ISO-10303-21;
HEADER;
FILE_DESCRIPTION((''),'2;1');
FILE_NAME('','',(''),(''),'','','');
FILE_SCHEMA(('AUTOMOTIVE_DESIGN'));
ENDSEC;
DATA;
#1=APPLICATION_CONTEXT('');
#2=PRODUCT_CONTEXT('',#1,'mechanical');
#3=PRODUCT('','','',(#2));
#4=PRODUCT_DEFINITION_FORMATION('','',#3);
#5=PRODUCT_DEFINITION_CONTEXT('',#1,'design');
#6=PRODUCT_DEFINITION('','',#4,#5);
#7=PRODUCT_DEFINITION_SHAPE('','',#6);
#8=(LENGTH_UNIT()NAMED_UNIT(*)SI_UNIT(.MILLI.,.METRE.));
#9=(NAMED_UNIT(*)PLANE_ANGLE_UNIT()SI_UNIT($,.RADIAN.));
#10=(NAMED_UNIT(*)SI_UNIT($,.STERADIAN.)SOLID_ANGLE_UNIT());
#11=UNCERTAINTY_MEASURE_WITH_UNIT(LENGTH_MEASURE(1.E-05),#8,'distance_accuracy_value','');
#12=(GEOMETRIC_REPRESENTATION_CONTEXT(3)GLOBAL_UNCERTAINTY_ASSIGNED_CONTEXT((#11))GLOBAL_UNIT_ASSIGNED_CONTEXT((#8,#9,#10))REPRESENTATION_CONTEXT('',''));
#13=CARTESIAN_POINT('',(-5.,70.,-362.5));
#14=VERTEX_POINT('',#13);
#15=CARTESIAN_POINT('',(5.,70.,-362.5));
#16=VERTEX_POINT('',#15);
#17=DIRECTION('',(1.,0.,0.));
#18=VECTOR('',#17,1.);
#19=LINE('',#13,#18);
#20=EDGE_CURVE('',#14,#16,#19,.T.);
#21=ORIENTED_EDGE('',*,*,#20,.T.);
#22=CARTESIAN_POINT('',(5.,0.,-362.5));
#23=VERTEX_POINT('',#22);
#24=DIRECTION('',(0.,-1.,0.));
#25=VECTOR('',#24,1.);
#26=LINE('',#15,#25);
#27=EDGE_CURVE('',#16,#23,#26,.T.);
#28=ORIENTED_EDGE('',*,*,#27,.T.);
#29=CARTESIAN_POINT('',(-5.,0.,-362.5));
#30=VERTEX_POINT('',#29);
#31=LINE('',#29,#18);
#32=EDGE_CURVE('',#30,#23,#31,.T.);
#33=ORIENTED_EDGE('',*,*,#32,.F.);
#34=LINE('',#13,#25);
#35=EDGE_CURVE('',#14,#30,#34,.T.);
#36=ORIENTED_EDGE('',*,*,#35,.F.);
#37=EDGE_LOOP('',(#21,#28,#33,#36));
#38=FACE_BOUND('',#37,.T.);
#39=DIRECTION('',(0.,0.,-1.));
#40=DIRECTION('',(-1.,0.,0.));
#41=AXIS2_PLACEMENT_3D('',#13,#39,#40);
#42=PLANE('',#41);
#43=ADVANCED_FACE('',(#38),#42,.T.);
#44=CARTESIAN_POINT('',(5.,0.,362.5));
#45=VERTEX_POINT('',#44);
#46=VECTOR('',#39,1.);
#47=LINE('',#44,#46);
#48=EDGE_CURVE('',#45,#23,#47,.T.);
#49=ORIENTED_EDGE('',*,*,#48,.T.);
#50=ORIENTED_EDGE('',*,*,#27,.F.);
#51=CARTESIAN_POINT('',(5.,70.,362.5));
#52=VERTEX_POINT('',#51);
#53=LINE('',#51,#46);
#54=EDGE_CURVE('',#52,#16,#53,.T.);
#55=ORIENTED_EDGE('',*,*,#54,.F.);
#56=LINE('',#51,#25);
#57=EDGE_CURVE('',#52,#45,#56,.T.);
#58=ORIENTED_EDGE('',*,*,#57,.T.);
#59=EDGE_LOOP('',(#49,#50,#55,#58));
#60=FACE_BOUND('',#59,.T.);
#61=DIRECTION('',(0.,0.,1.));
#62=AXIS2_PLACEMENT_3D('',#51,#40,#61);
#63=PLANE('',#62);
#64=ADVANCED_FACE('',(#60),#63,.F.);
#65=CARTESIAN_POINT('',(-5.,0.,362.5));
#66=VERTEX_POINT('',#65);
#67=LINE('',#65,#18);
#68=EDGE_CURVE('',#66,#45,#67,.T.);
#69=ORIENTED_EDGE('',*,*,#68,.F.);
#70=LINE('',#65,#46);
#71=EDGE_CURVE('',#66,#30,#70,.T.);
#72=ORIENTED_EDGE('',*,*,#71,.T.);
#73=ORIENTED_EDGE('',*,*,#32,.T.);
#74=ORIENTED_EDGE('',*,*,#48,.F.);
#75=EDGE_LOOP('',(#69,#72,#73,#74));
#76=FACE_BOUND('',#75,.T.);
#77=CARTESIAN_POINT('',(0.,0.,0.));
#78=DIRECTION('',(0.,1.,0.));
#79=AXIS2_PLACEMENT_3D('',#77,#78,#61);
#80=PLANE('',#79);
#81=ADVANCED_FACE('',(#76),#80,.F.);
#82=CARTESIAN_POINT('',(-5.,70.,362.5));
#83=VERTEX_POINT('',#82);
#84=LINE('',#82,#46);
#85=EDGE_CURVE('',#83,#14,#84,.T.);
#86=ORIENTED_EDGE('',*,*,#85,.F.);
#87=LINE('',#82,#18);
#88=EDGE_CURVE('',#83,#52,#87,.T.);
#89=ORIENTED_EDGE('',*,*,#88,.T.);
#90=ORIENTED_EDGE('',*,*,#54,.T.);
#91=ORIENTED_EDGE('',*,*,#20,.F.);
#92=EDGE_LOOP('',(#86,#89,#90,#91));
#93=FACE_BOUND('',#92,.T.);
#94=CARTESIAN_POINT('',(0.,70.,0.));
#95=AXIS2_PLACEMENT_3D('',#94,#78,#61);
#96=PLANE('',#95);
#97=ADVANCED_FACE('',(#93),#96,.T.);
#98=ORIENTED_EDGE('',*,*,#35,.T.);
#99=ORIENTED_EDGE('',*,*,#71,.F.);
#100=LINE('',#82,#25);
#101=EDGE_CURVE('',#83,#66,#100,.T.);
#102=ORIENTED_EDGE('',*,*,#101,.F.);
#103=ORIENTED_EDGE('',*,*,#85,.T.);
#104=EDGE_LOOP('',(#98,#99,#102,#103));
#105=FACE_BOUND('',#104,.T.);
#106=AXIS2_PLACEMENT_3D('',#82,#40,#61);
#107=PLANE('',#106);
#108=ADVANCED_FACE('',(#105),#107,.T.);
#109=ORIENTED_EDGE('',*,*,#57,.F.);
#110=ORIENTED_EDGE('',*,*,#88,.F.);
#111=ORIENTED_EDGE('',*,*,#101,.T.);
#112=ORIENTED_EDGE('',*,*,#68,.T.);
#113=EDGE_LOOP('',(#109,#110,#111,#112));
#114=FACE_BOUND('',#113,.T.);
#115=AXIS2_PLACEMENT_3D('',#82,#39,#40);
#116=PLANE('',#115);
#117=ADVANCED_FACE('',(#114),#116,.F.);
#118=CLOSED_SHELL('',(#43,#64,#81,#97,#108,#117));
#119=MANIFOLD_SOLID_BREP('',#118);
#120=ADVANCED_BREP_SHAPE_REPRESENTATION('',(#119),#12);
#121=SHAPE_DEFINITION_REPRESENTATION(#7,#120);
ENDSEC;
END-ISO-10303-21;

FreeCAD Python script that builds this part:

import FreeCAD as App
import Part
import Sketcher
from FreeCAD import Vector
Q = App.Units.Quantity

doc = App.newDocument("Part")
body = doc.addObject("PartDesign::Body", "Body")

sketch1 = body.newObject("Sketcher::SketchObject", "Sketch")
sketch1.AttachmentSupport = (doc.getObject("XZ_Plane"), [""])
sketch1.MapMode = "FlatFace"
sketch1.addGeometry([
    Part.LineSegment(Vector(-5, -362.5, 0), Vector(-5, 362.5, 0)),
    Part.LineSegment(Vector(-5, 362.5, 0), Vector(5, 362.5, 0)),
    Part.LineSegment(Vector(5, 362.5, 0), Vector(5, -362.5, 0)),
    Part.LineSegment(Vector(5, -362.5, 0), Vector(-5, -362.5, 0)),
], False)
sketch1.addConstraint([
    Sketcher.Constraint("Coincident", 0, 2, 1, 1),
    Sketcher.Constraint("Coincident", 1, 2, 2, 1),
    Sketcher.Constraint("Coincident", 2, 2, 3, 1),
    Sketcher.Constraint("Coincident", 3, 2, 0, 1),
    Sketcher.Constraint("Vertical", 0),
    Sketcher.Constraint("Horizontal", 1),
    Sketcher.Constraint("Vertical", 2),
    Sketcher.Constraint("Horizontal", 3),
    Sketcher.Constraint("Symmetric", 0, 2, 2, 2, -1, 1),
    Sketcher.Constraint("DistanceX", 1, 1, 1, 2, Q("10 mm")),
    Sketcher.Constraint("DistanceY", 0, 1, 0, 2, Q("725 mm")),
])
pad1 = body.newObject("PartDesign::Pad", "Pad")
pad1.Profile = sketch1
pad1.Length = 70
pad1.Reversed = True

doc.recompute()
